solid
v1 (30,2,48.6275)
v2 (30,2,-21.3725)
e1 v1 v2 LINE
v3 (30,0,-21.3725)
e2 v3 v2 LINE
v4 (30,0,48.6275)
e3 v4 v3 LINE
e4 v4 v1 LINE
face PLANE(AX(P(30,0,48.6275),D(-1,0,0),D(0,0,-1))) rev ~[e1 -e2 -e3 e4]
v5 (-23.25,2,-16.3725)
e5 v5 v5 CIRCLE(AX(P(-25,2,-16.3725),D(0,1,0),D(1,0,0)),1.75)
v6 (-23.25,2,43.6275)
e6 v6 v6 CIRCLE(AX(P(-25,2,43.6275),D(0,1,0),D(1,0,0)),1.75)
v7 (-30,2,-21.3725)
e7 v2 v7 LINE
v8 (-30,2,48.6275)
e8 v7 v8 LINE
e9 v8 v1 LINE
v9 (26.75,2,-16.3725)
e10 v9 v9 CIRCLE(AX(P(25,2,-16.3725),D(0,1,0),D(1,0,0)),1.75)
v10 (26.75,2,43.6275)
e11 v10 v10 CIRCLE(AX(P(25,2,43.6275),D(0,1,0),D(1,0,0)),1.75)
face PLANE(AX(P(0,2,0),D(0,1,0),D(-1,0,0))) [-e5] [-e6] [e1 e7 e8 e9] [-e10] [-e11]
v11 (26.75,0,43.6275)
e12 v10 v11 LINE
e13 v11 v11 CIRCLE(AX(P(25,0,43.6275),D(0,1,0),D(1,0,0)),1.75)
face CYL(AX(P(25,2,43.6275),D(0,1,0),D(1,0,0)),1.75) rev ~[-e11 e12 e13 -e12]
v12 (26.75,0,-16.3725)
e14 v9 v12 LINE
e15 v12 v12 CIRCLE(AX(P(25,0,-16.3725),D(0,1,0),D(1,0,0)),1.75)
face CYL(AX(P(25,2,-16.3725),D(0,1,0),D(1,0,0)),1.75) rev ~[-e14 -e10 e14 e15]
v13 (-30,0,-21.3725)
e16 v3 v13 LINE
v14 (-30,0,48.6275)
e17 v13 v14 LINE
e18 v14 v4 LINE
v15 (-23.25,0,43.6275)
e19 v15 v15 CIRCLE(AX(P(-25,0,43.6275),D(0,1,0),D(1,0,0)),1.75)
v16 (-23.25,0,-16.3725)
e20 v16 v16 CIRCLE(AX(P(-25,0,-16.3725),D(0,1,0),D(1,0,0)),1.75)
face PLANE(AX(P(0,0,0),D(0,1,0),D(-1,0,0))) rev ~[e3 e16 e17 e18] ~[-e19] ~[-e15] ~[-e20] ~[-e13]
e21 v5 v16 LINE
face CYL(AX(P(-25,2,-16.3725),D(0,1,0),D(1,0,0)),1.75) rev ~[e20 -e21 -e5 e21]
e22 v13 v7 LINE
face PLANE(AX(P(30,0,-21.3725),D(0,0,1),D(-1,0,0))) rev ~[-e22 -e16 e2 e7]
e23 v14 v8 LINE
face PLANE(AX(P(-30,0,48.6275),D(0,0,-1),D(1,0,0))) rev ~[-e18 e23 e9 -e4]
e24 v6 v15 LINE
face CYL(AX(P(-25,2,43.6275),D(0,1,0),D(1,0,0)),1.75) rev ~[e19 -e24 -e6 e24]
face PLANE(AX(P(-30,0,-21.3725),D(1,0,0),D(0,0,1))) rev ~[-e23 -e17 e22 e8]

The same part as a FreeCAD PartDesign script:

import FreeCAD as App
import Part
import Sketcher
from FreeCAD import Vector
Q = App.Units.Quantity

doc = App.newDocument("Part")
body = doc.addObject("PartDesign::Body", "Body")

# Sketch on XZ plane
sketch1 = doc.addObject("Sketcher::SketchObject", "Sketch")
body.addObject(sketch1)
sketch1.AttachmentSupport = (doc.XZ_Plane, [""])
sketch1.MapMode = "FlatFace"
sketch1.addGeometry([
    Part.LineSegment(Vector(-30, -21, 0), Vector(-30, 49, 0)),
    Part.LineSegment(Vector(-30, 49, 0), Vector(30, 49, 0)),
    Part.LineSegment(Vector(30, 49, 0), Vector(30, -21, 0)),
    Part.LineSegment(Vector(30, -21, 0), Vector(-30, -21, 0)),
], False)
sketch1.addConstraint([
    Sketcher.Constraint("Coincident", 0, 2, 1, 1),
    Sketcher.Constraint("Coincident", 1, 2, 2, 1),
    Sketcher.Constraint("Coincident", 2, 2, 3, 1),
    Sketcher.Constraint("Coincident", 3, 2, 0, 1),
    Sketcher.Constraint("Vertical", 0),
    Sketcher.Constraint("Horizontal", 1),
    Sketcher.Constraint("Vertical", 2),
    Sketcher.Constraint("Horizontal", 3),
    Sketcher.Constraint("DistanceX", 1, 1, 1, 2, Q("60 mm")),
    Sketcher.Constraint("DistanceY", 0, 1, 0, 2, Q("70 mm")),
    Sketcher.Constraint("DistanceX", 0, 2, -1, 1, Q("30 mm")),
    Sketcher.Constraint("DistanceY", -1, 1, 0, 2, Q("48.6275 mm")),
])
pad1 = doc.addObject("PartDesign::Pad", "Pad")
body.addObject(pad1)
pad1.Profile = sketch1
pad1.Length = 2
pad1.Reversed = True

# Sketch on XZ plane
sketch2 = doc.addObject("Sketcher::SketchObject", "Sketch001")
body.addObject(sketch2)
sketch2.AttachmentSupport = (doc.XZ_Plane, [""])
sketch2.MapMode = "FlatFace"
sketch2.AttachmentOffset = App.Placement(Vector(0, 0, -2), App.Rotation())
sketch2.addGeometry([
    Part.Circle(Vector(-25, 43.6, 0), Vector(0, 0, 1), 1.8),
    Part.Circle(Vector(25, 43.6, 0), Vector(0, 0, 1), 1.8),
    Part.Circle(Vector(25, -16.4, 0), Vector(0, 0, 1), 1.8),
    Part.Circle(Vector(-25, -16.4, 0), Vector(0, 0, 1), 1.8),
], False)
sketch2.addConstraint([
    Sketcher.Constraint("Equal", 0, 1),
    Sketcher.Constraint("Equal", 1, 2),
    Sketcher.Constraint("Equal", 2, 3),
    Sketcher.Constraint("Symmetric", 0, 3, 1, 3, -2),
    Sketcher.Constraint("Symmetric", 2, 3, 3, 3, -2),
    Sketcher.Constraint("Vertical", 1, 3, 2, 3),
    Sketcher.Constraint("Diameter", 0, Q("3.5 mm")),
    Sketcher.Constraint("DistanceX", 0, 3, -1, 1, Q("25 mm")),
    Sketcher.Constraint("DistanceY", 2, 3, 1, 3, Q("60 mm")),
    Sketcher.Constraint("DistanceY", -1, 1, 0, 3, Q("43.6275 mm")),
])
pocket1 = doc.addObject("PartDesign::Pocket", "Pocket")
body.addObject(pocket1)
pocket1.Profile = sketch2
pocket1.Type = "ThroughAll"
pocket1.Reversed = True

doc.recompute()
